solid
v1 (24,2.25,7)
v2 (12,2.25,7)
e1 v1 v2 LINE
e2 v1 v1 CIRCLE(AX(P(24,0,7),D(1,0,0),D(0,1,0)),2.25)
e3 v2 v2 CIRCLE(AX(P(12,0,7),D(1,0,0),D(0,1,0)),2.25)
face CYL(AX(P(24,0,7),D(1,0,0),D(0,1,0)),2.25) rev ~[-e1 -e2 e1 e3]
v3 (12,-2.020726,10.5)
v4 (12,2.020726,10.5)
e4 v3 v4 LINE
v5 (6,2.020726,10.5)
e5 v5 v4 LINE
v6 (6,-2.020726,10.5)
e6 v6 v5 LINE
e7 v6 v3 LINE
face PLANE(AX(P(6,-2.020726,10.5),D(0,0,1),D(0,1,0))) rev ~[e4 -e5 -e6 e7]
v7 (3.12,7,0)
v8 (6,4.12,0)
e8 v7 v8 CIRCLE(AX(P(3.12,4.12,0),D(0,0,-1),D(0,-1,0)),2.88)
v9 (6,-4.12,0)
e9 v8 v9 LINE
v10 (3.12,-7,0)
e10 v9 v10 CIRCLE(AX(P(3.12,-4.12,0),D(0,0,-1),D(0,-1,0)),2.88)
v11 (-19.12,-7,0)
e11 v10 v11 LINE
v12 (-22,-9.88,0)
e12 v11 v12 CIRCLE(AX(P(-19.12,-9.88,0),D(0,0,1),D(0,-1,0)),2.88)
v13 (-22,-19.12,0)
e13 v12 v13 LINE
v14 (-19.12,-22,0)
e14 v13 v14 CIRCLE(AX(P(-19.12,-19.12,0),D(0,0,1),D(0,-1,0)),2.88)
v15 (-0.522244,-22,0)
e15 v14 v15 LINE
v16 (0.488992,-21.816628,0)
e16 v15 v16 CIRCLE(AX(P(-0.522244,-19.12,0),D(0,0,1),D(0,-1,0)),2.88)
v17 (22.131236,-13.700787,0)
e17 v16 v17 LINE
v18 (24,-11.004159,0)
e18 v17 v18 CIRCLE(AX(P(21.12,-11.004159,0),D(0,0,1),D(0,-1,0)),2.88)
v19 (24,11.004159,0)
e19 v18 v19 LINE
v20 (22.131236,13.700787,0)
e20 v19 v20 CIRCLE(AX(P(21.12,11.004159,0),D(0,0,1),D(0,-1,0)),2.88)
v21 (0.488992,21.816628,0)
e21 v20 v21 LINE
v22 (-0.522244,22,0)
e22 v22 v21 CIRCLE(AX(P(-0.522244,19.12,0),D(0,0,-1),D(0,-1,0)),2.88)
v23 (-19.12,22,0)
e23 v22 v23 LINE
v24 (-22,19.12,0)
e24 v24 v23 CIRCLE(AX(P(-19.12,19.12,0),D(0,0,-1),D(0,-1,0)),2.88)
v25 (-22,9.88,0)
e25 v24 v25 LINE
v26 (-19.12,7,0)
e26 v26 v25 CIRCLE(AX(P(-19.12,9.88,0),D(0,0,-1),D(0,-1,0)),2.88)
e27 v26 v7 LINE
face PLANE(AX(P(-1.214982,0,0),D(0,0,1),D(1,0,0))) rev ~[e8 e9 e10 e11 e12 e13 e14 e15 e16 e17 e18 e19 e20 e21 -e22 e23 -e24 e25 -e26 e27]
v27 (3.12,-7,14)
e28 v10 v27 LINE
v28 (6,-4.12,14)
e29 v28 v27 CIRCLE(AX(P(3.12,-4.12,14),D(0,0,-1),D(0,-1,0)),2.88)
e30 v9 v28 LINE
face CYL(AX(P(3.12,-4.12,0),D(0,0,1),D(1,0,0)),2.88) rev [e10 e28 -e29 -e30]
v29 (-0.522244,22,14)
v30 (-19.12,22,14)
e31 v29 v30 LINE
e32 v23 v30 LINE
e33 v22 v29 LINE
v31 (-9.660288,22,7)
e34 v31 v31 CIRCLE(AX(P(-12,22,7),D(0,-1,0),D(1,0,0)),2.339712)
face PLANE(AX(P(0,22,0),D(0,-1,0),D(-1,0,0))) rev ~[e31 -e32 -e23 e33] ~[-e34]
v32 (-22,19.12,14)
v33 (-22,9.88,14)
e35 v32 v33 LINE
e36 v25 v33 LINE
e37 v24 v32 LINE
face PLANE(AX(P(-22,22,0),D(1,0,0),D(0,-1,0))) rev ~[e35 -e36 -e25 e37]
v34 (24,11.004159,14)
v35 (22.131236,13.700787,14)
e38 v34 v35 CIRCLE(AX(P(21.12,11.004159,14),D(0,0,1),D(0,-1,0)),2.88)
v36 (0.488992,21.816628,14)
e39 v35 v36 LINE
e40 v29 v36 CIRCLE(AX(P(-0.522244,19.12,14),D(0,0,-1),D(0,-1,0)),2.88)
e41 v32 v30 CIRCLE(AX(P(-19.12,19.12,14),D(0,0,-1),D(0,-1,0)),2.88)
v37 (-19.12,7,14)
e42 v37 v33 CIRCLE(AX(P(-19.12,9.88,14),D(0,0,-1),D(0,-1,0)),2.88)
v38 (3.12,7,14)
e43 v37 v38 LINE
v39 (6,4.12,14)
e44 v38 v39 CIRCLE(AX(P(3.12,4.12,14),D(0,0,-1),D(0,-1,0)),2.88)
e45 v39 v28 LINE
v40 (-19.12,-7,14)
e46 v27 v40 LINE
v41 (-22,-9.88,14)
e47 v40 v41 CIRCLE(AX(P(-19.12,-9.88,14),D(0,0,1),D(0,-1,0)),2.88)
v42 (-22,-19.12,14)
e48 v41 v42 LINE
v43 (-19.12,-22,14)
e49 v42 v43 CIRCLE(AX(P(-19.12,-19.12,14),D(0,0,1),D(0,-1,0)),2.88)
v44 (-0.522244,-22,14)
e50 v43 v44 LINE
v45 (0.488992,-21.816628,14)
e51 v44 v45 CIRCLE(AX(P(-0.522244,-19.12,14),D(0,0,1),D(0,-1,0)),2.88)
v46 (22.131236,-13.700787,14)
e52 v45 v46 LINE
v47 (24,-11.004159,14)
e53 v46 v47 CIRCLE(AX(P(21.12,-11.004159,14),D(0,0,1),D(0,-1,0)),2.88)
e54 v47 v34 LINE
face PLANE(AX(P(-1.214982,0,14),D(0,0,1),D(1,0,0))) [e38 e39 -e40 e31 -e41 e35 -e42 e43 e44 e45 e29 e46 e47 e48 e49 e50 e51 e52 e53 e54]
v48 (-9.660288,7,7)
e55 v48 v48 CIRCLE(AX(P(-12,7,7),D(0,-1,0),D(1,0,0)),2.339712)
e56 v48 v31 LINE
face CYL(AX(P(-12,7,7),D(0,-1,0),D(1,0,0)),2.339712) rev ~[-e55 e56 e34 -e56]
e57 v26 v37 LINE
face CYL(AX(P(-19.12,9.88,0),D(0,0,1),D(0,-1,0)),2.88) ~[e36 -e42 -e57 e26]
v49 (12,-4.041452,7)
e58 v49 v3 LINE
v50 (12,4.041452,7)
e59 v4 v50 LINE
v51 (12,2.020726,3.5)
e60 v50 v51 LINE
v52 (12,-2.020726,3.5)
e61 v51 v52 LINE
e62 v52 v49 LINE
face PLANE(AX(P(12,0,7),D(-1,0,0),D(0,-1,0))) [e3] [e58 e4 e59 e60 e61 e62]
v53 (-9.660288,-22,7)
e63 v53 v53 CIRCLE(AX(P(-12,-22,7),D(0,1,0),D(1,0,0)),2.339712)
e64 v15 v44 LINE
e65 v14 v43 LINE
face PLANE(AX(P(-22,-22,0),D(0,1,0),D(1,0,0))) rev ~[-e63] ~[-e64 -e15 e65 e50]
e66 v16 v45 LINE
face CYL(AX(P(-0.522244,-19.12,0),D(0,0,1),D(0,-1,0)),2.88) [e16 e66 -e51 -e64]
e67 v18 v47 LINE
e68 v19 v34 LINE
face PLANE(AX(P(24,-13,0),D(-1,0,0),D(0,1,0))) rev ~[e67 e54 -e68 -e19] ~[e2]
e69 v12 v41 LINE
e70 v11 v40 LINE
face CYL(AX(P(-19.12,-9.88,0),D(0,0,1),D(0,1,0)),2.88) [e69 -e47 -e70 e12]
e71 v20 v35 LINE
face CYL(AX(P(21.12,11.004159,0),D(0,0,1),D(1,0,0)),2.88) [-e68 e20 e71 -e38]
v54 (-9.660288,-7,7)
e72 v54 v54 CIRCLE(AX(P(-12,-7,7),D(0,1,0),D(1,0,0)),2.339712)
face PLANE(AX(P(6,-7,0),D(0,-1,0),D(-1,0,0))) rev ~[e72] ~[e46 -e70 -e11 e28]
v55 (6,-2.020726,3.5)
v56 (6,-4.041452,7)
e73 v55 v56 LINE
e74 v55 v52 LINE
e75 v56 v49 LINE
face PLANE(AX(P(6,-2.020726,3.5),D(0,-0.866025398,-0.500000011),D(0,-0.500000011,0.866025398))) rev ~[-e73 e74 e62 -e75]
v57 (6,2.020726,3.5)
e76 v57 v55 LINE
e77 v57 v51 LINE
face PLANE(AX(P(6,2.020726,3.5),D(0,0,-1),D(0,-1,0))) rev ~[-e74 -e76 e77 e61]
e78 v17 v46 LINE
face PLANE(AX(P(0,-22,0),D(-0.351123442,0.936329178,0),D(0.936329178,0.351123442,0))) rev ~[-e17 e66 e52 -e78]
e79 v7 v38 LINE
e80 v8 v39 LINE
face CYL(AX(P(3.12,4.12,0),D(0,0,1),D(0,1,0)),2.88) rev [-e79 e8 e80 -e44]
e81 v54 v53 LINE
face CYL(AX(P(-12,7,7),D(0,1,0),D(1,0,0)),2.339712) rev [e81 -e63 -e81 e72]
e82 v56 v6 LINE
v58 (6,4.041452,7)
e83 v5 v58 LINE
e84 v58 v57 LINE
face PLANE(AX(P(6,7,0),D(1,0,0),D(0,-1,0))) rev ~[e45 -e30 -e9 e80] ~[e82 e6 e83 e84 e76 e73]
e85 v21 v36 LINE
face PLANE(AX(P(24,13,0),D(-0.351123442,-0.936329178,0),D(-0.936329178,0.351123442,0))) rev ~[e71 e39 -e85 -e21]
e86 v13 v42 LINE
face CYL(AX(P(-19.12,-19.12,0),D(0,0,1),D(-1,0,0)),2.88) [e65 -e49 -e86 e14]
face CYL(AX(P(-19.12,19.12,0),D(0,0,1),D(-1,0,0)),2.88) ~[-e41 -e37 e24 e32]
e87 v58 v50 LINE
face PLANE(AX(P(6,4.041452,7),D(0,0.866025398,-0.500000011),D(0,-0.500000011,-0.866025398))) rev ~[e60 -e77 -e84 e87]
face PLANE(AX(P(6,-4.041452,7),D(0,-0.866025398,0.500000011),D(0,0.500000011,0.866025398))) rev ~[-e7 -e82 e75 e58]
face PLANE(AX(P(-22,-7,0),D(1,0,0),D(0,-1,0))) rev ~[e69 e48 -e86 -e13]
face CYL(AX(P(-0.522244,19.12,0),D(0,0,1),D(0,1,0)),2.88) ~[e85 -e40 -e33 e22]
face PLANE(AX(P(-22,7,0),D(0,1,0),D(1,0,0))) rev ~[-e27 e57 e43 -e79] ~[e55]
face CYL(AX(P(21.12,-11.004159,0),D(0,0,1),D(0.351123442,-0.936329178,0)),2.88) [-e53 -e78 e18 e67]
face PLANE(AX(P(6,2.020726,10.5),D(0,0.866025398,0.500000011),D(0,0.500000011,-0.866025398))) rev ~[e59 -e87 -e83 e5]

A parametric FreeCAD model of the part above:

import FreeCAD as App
import Part
import Sketcher
from FreeCAD import Vector
Q = App.Units.Quantity


def edges_at(feature, points):
    """Names of the edges that pass closest to the given points."""
    edges = feature.Shape.Edges
    near = lambda p: min(range(len(edges)), key=lambda i: edges[i].distToShape(Part.Vertex(*p))[0])
    return sorted({f"Edge{near(p) + 1}" for p in points})

doc = App.newDocument("Part")
params = doc.addObject("Spreadsheet::Sheet", "Params")
for row, (alias, value) in enumerate([
    ("sketch1_width", "28 mm"),
    ("sketch1_width2", "22 mm"),
    ("sketch1_height", "14 mm"),
    ("sketch1_height2", "15 mm"),
    ("sketch1_height3", "26 mm"),
    ("pad1_length", "14 mm"),
    ("pocket1_length", "6 mm"),
    ("sketch3_diameter", "4.5 mm"),
    ("fillet_radius", "2.88 mm"),
], start=1):
    params.set(f"A{row}", alias)
    params.set(f"B{row}", "=" + value)
    params.setAlias(f"B{row}", alias)

body = doc.addObject("PartDesign::Body", "Body")

sketch1 = body.newObject("Sketcher::SketchObject", "Sketch")
sketch1.AttachmentSupport = (doc.getObject("XY_Plane"), [""])
sketch1.MapMode = "FlatFace"
sketch1.addGeometry([
    Part.LineSegment(Vector(-22, 7, 0), Vector(6, 7, 0)),
    Part.LineSegment(Vector(6, 7, 0), Vector(6, -7, 0)),
    Part.LineSegment(Vector(6, -7, 0), Vector(-22, -7, 0)),
    Part.LineSegment(Vector(-22, -7, 0), Vector(-22, -22, 0)),
    Part.LineSegment(Vector(-22, -22, 0), Vector(0, -22, 0)),
    Part.LineSegment(Vector(0, -22, 0), Vector(24, -13, 0)),
    Part.LineSegment(Vector(24, -13, 0), Vector(24, 13, 0)),
    Part.LineSegment(Vector(24, 13, 0), Vector(0, 22, 0)),
    Part.LineSegment(Vector(0, 22, 0), Vector(-22, 22, 0)),
    Part.LineSegment(Vector(-22, 22, 0), Vector(-22, 7, 0)),
], False)
sketch1.addConstraint([
    Sketcher.Constraint("Coincident", 0, 2, 1, 1),
    Sketcher.Constraint("Coincident", 1, 2, 2, 1),
    Sketcher.Constraint("Coincident", 2, 2, 3, 1),
    Sketcher.Constraint("Coincident", 3, 2, 4, 1),
    Sketcher.Constraint("Coincident", 4, 2, 5, 1),
    Sketcher.Constraint("Coincident", 5, 2, 6, 1),
    Sketcher.Constraint("Coincident", 6, 2, 7, 1),
    Sketcher.Constraint("Coincident", 7, 2, 8, 1),
    Sketcher.Constraint("Coincident", 8, 2, 9, 1),
    Sketcher.Constraint("Coincident", 9, 2, 0, 1),
    Sketcher.Constraint("Horizontal", 0),
    Sketcher.Constraint("Vertical", 1),
    Sketcher.Constraint("Horizontal", 2),
    Sketcher.Constraint("Vertical", 3),
    Sketcher.Constraint("Horizontal", 4),
    Sketcher.Constraint("Vertical", 6),
    Sketcher.Constraint("Horizontal", 8),
    Sketcher.Constraint("Vertical", 9),
    Sketcher.Constraint("Symmetric", 4, 2, 7, 2, -1, 1),
    Sketcher.Constraint("Symmetric", 2, 2, 9, 2, -1),
    Sketcher.Constraint("PointOnObject", 4, 2, -2),
    Sketcher.Constraint("Equal", 5, 7),
    Sketcher.Constraint("DistanceX", 0, 1, 0, 2, 28.0),
    Sketcher.Constraint("DistanceX", 4, 1, 4, 2, 22.0),
    Sketcher.Constraint("DistanceY", 1, 2, 1, 1, 14.0),
    Sketcher.Constraint("DistanceY", 3, 2, 3, 1, 15.0),
    Sketcher.Constraint("DistanceY", 6, 1, 6, 2, 26.0),
    Sketcher.Constraint("DistanceX", -1, 1, 5, 2, 24.0),
])
sketch1.setExpression("Constraints[22]", "Params.sketch1_width")
sketch1.setExpression("Constraints[23]", "Params.sketch1_width2")
sketch1.setExpression("Constraints[24]", "Params.sketch1_height")
sketch1.setExpression("Constraints[25]", "Params.sketch1_height2")
sketch1.setExpression("Constraints[26]", "Params.sketch1_height3")
pad1 = body.newObject("PartDesign::Pad", "Pad")
pad1.Profile = sketch1
pad1.setExpression("Length", "Params.pad1_length")

sketch2 = body.newObject("Sketcher::SketchObject", "Sketch001")
sketch2.AttachmentSupport = (doc.getObject("YZ_Plane"), [""])
sketch2.MapMode = "FlatFace"
sketch2.AttachmentOffset = App.Placement(Vector(0, 0, 6), App.Rotation())
sketch2.addGeometry([
    Part.LineSegment(Vector(2, 3.5, 0), Vector(-2, 3.5, 0)),
    Part.LineSegment(Vector(-2, 3.5, 0), Vector(-4, 7, 0)),
    Part.LineSegment(Vector(-4, 7, 0), Vector(-2, 10.5, 0)),
    Part.LineSegment(Vector(-2, 10.5, 0), Vector(2, 10.5, 0)),
    Part.LineSegment(Vector(2, 10.5, 0), Vector(4, 7, 0)),
    Part.LineSegment(Vector(4, 7, 0), Vector(2, 3.5, 0)),
], False)
sketch2.addConstraint([
    Sketcher.Constraint("Coincident", 0, 2, 1, 1),
    Sketcher.Constraint("Coincident", 1, 2, 2, 1),
    Sketcher.Constraint("Coincident", 2, 2, 3, 1),
    Sketcher.Constraint("Coincident", 3, 2, 4, 1),
    Sketcher.Constraint("Coincident", 4, 2, 5, 1),
    Sketcher.Constraint("Coincident", 5, 2, 0, 1),
    Sketcher.Constraint("Horizontal", 0),
    Sketcher.Constraint("Horizontal", 3),
    Sketcher.Constraint("Symmetric", 1, 2, 4, 2, -2),
    Sketcher.Constraint("Parallel", 1, 4),
    Sketcher.Constraint("Parallel", 2, 5),
    Sketcher.Constraint("Vertical", 0, 2, 2, 2),
    Sketcher.Constraint("Vertical", 3, 2, 5, 2),
    Sketcher.Constraint("Angle", 1, Q("120.000001 deg")),
    Sketcher.Constraint("DistanceY", -1, 1, 1, 2, 7.0),
    Sketcher.Constraint("DistanceY", 0, 2, 2, 2, 7.0),
    Sketcher.Constraint("DistanceX", 0, 2, 0, 1, 4.041452),
])
pocket1 = body.newObject("PartDesign::Pocket", "Pocket")
pocket1.Profile = sketch2
pocket1.setExpression("Length", "Params.pocket1_length")
pocket1.Reversed = True

sketch3 = body.newObject("Sketcher::SketchObject", "Sketch002")
sketch3.AttachmentSupport = (doc.getObject("YZ_Plane"), [""])
sketch3.MapMode = "FlatFace"
sketch3.AttachmentOffset = App.Placement(Vector(0, 0, 24), App.Rotation())
sketch3.addGeometry(Part.Circle(Vector(0, 7, 0), Vector(0, 0, 1), 2.2), False)
sketch3.addConstraint([
    Sketcher.Constraint("PointOnObject", 0, 3, -2),
    Sketcher.Constraint("Diameter", 0, 4.5),
    Sketcher.Constraint("DistanceY", -1, 1, 0, 3, 7.0),
])
sketch3.setExpression("Constraints[1]", "Params.sketch3_diameter")
pocket2 = body.newObject("PartDesign::Pocket", "Pocket001")
pocket2.Profile = sketch3
pocket2.Type = "ThroughAll"

sketch4 = body.newObject("Sketcher::SketchObject", "Sketch003")
sketch4.AttachmentSupport = (doc.getObject("XZ_Plane"), [""])
sketch4.MapMode = "FlatFace"
sketch4.AttachmentOffset = App.Placement(Vector(0, 0, -7), App.Rotation())
sketch4.addGeometry(Part.Circle(Vector(-12, 7, 0), Vector(0, 0, 1), 2.3), False)
sketch4.addConstraint([
    Sketcher.Constraint("DistanceX", 0, 3, -1, 1, 12.0),
    Sketcher.Constraint("DistanceY", -1, 1, 0, 3, 7.0),
    Sketcher.Constraint("Diameter", 0, 4.679424),
])
pocket3 = body.newObject("PartDesign::Pocket", "Pocket002")
pocket3.Profile = sketch4
pocket3.Type = "ThroughAll"
pocket3.Midplane = True
doc.recompute()

fillet = body.newObject("PartDesign::Fillet", "Fillet")
fillet.Base = (pocket3, edges_at(pocket3, [
    (6, -7, 7),
    (6, 7, 7),
    (-22, -7, 7),
    (-22, -22, 7),
    (0, -22, 7),
    (24, -13, 7),
    (24, 13, 7),
    (0, 22, 7),
    (-22, 22, 7),
    (-22, 7, 7),
]))
fillet.setExpression("Radius", "Params.fillet_radius")

doc.recompute()
